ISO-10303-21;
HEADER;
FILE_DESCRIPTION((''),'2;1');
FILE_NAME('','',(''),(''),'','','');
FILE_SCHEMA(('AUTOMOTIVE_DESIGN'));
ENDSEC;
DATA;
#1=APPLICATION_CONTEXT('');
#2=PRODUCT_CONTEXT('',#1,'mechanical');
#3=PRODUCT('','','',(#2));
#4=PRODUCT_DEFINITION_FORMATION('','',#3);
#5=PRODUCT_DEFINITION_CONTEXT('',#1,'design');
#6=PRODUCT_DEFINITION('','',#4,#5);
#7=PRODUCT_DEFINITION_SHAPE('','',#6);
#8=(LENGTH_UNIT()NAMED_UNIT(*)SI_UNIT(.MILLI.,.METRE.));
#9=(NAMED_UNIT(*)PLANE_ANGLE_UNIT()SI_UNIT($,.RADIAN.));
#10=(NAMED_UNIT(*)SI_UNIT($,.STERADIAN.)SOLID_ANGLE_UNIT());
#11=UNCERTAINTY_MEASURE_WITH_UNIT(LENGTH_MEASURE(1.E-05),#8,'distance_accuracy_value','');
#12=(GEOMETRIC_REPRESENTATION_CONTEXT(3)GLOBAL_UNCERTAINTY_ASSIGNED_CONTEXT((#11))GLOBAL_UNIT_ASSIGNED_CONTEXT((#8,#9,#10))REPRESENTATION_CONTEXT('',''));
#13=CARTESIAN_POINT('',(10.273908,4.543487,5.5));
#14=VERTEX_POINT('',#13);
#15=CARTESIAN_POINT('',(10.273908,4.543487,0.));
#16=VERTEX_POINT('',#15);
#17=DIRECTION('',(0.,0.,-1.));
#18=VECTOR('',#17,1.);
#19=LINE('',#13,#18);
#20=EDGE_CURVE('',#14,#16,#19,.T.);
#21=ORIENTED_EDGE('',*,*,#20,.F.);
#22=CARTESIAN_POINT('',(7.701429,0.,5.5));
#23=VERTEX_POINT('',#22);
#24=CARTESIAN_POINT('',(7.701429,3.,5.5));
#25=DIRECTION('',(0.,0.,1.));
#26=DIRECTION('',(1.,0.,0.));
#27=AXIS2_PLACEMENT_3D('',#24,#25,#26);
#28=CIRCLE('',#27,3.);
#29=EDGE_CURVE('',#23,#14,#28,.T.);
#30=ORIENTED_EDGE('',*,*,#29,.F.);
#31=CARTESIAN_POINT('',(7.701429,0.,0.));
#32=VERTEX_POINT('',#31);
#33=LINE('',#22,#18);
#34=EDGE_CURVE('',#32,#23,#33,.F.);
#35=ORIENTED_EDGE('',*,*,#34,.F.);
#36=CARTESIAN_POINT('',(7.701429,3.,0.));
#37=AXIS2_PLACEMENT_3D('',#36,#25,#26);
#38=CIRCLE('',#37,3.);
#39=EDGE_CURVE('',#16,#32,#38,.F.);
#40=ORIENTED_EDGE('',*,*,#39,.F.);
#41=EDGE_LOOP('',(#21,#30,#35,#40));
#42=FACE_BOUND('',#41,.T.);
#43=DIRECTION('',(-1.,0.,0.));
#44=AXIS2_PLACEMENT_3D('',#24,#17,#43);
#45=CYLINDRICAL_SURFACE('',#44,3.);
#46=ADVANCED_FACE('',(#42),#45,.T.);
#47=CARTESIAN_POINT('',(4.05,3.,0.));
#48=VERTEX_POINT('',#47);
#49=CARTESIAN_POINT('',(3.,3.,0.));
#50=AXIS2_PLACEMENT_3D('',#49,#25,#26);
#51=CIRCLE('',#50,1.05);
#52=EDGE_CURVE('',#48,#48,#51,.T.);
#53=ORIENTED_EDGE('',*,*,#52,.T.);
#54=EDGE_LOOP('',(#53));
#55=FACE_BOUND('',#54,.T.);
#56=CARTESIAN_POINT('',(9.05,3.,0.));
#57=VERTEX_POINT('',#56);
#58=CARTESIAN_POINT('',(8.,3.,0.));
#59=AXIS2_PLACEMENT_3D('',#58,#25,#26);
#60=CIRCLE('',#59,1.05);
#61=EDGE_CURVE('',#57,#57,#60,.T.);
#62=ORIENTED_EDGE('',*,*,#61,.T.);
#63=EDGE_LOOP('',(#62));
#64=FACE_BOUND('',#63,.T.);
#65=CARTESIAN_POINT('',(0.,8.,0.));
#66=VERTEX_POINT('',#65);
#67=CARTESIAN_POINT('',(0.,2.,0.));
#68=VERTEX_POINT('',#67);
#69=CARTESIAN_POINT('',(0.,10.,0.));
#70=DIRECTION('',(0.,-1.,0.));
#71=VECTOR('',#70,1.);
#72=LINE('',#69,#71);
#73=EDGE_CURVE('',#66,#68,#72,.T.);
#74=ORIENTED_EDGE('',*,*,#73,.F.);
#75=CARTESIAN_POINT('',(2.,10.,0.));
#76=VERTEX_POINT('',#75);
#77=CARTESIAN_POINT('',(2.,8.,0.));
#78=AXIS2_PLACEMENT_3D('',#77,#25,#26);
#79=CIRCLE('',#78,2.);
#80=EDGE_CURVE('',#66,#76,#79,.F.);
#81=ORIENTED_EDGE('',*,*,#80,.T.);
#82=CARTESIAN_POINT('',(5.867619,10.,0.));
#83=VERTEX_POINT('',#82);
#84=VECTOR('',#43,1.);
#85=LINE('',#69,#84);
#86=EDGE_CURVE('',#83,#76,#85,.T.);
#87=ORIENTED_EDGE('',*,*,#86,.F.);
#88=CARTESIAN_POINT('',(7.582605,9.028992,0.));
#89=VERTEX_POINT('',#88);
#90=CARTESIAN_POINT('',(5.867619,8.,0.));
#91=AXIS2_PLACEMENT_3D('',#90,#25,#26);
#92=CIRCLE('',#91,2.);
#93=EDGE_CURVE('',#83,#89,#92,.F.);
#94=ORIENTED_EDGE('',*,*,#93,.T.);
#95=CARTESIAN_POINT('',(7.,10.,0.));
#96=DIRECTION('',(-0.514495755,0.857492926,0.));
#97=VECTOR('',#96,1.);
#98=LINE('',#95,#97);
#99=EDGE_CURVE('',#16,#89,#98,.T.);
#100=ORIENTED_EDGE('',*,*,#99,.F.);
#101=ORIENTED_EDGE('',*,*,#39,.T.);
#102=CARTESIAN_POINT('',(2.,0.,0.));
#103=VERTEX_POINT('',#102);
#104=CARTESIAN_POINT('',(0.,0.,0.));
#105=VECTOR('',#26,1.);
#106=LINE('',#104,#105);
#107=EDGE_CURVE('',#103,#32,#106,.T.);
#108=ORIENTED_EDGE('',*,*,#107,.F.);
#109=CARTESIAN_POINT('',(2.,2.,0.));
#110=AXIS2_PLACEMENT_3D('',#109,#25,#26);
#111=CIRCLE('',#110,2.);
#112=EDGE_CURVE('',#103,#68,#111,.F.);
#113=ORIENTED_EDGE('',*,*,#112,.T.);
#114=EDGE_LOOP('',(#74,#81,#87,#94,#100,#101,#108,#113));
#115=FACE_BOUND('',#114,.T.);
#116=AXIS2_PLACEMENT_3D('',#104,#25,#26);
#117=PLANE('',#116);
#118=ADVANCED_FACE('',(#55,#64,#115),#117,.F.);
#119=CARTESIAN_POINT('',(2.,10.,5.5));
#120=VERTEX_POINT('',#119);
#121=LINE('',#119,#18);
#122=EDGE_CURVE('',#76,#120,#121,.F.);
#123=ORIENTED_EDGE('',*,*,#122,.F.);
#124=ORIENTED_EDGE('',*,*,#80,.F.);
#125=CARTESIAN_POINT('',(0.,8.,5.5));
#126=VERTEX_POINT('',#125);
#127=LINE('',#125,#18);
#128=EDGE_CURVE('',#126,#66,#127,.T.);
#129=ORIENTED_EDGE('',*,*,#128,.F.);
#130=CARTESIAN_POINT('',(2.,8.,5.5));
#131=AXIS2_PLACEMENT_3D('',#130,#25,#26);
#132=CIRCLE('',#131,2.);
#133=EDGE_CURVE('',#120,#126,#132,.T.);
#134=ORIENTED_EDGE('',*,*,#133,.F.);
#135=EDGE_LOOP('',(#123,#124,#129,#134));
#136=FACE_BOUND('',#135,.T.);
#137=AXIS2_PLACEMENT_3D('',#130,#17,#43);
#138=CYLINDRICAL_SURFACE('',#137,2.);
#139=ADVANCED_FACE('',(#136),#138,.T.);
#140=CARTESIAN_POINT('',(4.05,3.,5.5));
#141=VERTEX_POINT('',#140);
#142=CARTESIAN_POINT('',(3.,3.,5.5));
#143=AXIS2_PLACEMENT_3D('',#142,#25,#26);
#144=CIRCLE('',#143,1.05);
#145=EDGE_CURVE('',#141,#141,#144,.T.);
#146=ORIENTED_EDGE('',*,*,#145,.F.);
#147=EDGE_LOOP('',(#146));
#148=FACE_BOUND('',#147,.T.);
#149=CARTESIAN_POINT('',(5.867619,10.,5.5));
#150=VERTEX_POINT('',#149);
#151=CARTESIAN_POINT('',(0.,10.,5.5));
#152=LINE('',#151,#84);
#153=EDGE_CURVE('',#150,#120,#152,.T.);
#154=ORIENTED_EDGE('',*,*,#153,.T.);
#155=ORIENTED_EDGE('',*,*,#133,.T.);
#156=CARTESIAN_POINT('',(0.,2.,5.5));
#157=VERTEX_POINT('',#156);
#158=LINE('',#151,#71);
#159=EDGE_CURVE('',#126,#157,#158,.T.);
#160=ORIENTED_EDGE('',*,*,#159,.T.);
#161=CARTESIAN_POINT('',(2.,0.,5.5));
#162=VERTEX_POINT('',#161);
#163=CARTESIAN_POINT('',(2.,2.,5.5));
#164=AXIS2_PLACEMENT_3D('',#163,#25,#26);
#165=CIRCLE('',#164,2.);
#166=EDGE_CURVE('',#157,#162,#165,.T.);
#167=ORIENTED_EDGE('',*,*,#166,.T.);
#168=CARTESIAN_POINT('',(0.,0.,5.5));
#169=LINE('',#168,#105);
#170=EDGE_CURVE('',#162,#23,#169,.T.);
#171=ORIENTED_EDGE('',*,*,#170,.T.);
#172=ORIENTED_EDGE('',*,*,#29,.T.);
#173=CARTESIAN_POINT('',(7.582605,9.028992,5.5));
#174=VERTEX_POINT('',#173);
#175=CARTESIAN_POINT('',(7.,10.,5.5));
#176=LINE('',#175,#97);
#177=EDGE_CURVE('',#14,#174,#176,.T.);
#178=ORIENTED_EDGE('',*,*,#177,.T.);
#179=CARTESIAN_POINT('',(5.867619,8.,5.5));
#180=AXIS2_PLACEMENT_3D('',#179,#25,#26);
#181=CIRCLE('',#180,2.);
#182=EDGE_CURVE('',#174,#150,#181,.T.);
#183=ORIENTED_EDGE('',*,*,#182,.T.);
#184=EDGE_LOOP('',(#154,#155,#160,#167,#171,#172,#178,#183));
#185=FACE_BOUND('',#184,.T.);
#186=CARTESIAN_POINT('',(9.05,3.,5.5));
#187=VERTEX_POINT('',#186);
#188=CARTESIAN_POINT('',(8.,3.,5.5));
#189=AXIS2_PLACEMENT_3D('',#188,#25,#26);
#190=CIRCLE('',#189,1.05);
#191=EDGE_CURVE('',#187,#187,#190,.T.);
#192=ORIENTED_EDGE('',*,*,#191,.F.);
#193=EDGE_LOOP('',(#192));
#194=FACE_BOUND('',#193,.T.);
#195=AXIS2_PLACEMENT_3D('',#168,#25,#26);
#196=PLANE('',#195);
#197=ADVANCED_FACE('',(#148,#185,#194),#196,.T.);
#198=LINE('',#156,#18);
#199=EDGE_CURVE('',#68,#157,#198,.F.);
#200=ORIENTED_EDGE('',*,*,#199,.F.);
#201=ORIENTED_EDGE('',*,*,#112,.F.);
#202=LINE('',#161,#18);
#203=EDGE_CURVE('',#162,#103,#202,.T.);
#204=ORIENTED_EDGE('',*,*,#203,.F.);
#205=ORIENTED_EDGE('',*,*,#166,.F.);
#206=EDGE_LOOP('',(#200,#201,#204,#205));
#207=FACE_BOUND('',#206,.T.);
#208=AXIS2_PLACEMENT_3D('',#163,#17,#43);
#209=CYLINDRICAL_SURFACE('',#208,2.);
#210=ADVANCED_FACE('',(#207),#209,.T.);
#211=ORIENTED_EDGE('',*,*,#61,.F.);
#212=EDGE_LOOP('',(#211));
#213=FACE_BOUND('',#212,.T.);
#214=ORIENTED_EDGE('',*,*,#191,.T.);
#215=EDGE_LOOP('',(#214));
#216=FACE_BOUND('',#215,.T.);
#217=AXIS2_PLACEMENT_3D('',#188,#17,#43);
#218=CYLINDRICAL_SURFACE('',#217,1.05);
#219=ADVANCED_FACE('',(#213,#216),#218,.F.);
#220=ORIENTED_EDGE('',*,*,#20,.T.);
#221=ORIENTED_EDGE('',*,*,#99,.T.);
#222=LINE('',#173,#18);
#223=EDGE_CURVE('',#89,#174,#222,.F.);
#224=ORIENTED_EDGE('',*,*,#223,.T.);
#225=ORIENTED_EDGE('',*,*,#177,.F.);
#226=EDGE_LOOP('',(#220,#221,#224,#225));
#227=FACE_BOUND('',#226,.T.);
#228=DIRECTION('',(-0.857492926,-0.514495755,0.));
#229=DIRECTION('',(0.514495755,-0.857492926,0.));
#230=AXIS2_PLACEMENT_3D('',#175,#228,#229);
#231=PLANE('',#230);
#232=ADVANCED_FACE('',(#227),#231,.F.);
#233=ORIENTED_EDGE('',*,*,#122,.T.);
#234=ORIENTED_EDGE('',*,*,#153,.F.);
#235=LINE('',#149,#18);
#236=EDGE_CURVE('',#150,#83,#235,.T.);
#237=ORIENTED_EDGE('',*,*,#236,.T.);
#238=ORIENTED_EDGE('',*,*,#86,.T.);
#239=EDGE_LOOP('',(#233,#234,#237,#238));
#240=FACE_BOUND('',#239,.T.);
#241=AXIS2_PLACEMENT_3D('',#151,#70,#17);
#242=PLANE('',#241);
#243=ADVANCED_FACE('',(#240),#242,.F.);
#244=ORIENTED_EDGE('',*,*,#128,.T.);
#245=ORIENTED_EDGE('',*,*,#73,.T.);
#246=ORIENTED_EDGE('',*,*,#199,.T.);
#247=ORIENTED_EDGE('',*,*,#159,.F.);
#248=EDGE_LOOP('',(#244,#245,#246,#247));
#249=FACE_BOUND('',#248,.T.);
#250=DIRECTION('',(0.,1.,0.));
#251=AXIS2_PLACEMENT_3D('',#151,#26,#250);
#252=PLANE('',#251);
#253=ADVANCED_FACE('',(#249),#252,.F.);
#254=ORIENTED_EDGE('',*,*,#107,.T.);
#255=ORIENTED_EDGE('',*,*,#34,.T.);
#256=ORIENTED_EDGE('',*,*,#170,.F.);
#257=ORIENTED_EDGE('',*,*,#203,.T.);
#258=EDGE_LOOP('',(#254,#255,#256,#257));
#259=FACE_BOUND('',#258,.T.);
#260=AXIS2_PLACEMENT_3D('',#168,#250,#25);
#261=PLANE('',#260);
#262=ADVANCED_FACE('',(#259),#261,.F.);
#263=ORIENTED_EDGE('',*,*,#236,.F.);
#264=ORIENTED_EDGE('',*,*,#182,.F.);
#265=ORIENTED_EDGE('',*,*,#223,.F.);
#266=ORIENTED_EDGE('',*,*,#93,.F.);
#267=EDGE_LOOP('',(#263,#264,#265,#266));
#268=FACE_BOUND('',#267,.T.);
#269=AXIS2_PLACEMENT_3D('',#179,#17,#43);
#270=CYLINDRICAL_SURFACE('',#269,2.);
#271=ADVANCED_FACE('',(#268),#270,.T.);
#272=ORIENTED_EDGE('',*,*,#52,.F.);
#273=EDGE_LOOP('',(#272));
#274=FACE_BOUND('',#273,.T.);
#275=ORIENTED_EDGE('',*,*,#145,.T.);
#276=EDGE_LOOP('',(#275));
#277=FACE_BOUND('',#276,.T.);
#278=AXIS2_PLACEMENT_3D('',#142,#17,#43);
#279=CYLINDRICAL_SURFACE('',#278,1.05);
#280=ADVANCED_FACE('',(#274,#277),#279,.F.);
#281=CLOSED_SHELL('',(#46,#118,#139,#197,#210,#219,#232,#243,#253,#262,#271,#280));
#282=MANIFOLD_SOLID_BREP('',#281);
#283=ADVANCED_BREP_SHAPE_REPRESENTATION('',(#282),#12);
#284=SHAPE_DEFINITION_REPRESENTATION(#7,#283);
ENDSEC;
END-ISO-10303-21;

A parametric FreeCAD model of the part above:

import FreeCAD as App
import Part
import Sketcher

V = App.Vector
Q = App.Units.Quantity


def edges_at(feature, points):
    """Names of the edges that pass closest to the given points."""
    edges = feature.Shape.Edges
    near = lambda p: min(range(len(edges)), key=lambda i: edges[i].distToShape(Part.Vertex(*p))[0])
    return sorted({f"Edge{near(p) + 1}" for p in points})


def add_polygon(sketch, points):
    """Adds a closed chain of lines whose ends are joined by coincident constraints."""
    first, n = sketch.GeometryCount, len(points)
    for a, b in zip(points, points[1:] + points[:1]):
        sketch.addGeometry(Part.LineSegment(App.Vector(*a, 0), App.Vector(*b, 0)), False)
    for i in range(n):
        sketch.addConstraint(Sketcher.Constraint("Coincident", first + i, 2, first + (i + 1) % n, 1))

doc = App.newDocument("Part")
body = doc.addObject("PartDesign::Body", "Body")

sketch1 = doc.addObject("Sketcher::SketchObject", "Sketch")
body.addObject(sketch1)
sketch1.AttachmentSupport = (doc.XY_Plane, [""])
sketch1.MapMode = "FlatFace"
add_polygon(sketch1, [(0, 0), (13, 0), (7, 10), (0, 10)])
sketch1.addGeometry(Part.Circle(V(3, 3, 0), V(0, 0, 1), 1.1), False)
sketch1.addGeometry(Part.Circle(V(8, 3, 0), V(0, 0, 1), 1.1), False)
sketch1.addConstraint([
    Sketcher.Constraint("Horizontal", 0),
    Sketcher.Constraint("Horizontal", 2),
    Sketcher.Constraint("Vertical", 3),
    Sketcher.Constraint("Coincident", 3, 2, -1, 1),
    Sketcher.Constraint("Equal", 4, 5),
    Sketcher.Constraint("Horizontal", 4, 3, 5, 3),
    Sketcher.Constraint("Diameter", 4, Q("2.1 mm")),
    Sketcher.Constraint("DistanceX", 0, 1, 0, 2, Q("13 mm")),
    Sketcher.Constraint("DistanceX", 2, 2, 2, 1, Q("7 mm")),
    Sketcher.Constraint("DistanceY", 3, 2, 3, 1, Q("10 mm")),
    Sketcher.Constraint("DistanceX", -1, 1, 4, 3, Q("3 mm")),
    Sketcher.Constraint("DistanceY", -1, 1, 4, 3, Q("3 mm")),
    Sketcher.Constraint("DistanceX", -1, 1, 5, 3, Q("8 mm")),
])
pad1 = doc.addObject("PartDesign::Pad", "Pad")
body.addObject(pad1)
pad1.Profile = sketch1
pad1.Length = 5.5
doc.recompute()

fillet = doc.addObject("PartDesign::Fillet", "Fillet")
body.addObject(fillet)
fillet.Base = (pad1, edges_at(pad1, [(13, 0, 2.75)]))
fillet.Radius = 3
doc.recompute()

fillet2 = doc.addObject("PartDesign::Fillet", "Fillet001")
body.addObject(fillet2)
fillet2.Base = (fillet, edges_at(fillet, [(0, 10, 2.75), (7, 10, 2.75), (0, 0, 2.75)]))
fillet2.Radius = 2

doc.recompute()
